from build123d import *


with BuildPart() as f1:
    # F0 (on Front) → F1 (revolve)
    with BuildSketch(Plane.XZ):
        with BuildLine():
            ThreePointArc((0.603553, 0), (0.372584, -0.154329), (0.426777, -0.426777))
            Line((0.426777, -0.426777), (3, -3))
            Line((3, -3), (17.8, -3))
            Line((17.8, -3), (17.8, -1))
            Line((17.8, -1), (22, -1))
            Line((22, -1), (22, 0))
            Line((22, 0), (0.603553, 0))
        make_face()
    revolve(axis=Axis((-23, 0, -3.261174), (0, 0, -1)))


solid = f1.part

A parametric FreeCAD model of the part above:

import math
import FreeCAD as App
import Part
import Sketcher
Q = App.Units.Quantity

doc = App.newDocument("Part")
body = doc.addObject("PartDesign::Body", "Body")

# Sketch on XZ plane
sketch1 = body.newObject("Sketcher::SketchObject", "Sketch")
sketch1.AttachmentSupport = (doc.getObject("XZ_Plane"), [""])
sketch1.MapMode = "FlatFace"
sketch1.addGeometry([
    Part.ArcOfCircle(Part.Circle(App.Vector(0.6, -0.25, 0), App.Vector(0, 0, 1), 0.25), math.radians(90), math.radians(225)),  # 0
    Part.LineSegment(App.Vector(0.43, -0.43, 0), App.Vector(3, -3, 0)),  # 1
    Part.LineSegment(App.Vector(3, -3, 0), App.Vector(17.8, -3, 0)),  # 2
    Part.LineSegment(App.Vector(17.8, -3, 0), App.Vector(17.8, -1, 0)),  # 3
    Part.LineSegment(App.Vector(17.8, -1, 0), App.Vector(22, -1, 0)),  # 4
    Part.LineSegment(App.Vector(22, -1, 0), App.Vector(22, 0, 0)),  # 5
    Part.LineSegment(App.Vector(22, 0, 0), App.Vector(0.6, 0, 0)),  # 6
], False)
sketch1.addGeometry(Part.LineSegment(App.Vector(-23, 0, 0), App.Vector(-23, -3, 0)), True)  # axis
sketch1.addConstraint([
    Sketcher.Constraint("Tangent", 0, 2, 1, 1),
    Sketcher.Constraint("Coincident", 1, 2, 2, 1),
    Sketcher.Constraint("Coincident", 2, 2, 3, 1),
    Sketcher.Constraint("Coincident", 3, 2, 4, 1),
    Sketcher.Constraint("Coincident", 4, 2, 5, 1),
    Sketcher.Constraint("Coincident", 5, 2, 6, 1),
    Sketcher.Constraint("Coincident", 6, 2, 0, 1),
    Sketcher.Constraint("Horizontal", 2),
    Sketcher.Constraint("Vertical", 3),
    Sketcher.Constraint("Horizontal", 4),
    Sketcher.Constraint("Vertical", 5),
    Sketcher.Constraint("Horizontal", 6),
    Sketcher.Constraint("Vertical", 7),
    Sketcher.Constraint("PointOnObject", 5, 2, -1),
    Sketcher.Constraint("PointOnObject", 7, 1, -1),
    Sketcher.Constraint("Horizontal", 2, 2, 7, 2),
    Sketcher.Constraint("Vertical", 0, 3, 6, 2),
    Sketcher.Constraint("DistanceY", 3, 1, 3, 2, Q("2 mm")),
    Sketcher.Constraint("DistanceY", 5, 1, 5, 2, Q("1 mm")),
    Sketcher.Constraint("Angle", 1, Q("-45 deg")),
    Sketcher.Constraint("Radius", 0, Q("0.25 mm")),
    Sketcher.Constraint("DistanceX", 2, 1, 2, 2, Q("14.8 mm")),
    Sketcher.Constraint("DistanceX", 4, 1, 4, 2, Q("4.2 mm")),
    Sketcher.Constraint("DistanceX", -1, 1, 1, 2, Q("3 mm")),
    Sketcher.Constraint("DistanceX", 7, 1, -1, 1, Q("23 mm")),
])
revolution = body.newObject("PartDesign::Revolution", "Revolution")
revolution.Profile = sketch1
revolution.ReferenceAxis = (sketch1, ["Axis0"])
revolution.Angle = 360

doc.recompute()
